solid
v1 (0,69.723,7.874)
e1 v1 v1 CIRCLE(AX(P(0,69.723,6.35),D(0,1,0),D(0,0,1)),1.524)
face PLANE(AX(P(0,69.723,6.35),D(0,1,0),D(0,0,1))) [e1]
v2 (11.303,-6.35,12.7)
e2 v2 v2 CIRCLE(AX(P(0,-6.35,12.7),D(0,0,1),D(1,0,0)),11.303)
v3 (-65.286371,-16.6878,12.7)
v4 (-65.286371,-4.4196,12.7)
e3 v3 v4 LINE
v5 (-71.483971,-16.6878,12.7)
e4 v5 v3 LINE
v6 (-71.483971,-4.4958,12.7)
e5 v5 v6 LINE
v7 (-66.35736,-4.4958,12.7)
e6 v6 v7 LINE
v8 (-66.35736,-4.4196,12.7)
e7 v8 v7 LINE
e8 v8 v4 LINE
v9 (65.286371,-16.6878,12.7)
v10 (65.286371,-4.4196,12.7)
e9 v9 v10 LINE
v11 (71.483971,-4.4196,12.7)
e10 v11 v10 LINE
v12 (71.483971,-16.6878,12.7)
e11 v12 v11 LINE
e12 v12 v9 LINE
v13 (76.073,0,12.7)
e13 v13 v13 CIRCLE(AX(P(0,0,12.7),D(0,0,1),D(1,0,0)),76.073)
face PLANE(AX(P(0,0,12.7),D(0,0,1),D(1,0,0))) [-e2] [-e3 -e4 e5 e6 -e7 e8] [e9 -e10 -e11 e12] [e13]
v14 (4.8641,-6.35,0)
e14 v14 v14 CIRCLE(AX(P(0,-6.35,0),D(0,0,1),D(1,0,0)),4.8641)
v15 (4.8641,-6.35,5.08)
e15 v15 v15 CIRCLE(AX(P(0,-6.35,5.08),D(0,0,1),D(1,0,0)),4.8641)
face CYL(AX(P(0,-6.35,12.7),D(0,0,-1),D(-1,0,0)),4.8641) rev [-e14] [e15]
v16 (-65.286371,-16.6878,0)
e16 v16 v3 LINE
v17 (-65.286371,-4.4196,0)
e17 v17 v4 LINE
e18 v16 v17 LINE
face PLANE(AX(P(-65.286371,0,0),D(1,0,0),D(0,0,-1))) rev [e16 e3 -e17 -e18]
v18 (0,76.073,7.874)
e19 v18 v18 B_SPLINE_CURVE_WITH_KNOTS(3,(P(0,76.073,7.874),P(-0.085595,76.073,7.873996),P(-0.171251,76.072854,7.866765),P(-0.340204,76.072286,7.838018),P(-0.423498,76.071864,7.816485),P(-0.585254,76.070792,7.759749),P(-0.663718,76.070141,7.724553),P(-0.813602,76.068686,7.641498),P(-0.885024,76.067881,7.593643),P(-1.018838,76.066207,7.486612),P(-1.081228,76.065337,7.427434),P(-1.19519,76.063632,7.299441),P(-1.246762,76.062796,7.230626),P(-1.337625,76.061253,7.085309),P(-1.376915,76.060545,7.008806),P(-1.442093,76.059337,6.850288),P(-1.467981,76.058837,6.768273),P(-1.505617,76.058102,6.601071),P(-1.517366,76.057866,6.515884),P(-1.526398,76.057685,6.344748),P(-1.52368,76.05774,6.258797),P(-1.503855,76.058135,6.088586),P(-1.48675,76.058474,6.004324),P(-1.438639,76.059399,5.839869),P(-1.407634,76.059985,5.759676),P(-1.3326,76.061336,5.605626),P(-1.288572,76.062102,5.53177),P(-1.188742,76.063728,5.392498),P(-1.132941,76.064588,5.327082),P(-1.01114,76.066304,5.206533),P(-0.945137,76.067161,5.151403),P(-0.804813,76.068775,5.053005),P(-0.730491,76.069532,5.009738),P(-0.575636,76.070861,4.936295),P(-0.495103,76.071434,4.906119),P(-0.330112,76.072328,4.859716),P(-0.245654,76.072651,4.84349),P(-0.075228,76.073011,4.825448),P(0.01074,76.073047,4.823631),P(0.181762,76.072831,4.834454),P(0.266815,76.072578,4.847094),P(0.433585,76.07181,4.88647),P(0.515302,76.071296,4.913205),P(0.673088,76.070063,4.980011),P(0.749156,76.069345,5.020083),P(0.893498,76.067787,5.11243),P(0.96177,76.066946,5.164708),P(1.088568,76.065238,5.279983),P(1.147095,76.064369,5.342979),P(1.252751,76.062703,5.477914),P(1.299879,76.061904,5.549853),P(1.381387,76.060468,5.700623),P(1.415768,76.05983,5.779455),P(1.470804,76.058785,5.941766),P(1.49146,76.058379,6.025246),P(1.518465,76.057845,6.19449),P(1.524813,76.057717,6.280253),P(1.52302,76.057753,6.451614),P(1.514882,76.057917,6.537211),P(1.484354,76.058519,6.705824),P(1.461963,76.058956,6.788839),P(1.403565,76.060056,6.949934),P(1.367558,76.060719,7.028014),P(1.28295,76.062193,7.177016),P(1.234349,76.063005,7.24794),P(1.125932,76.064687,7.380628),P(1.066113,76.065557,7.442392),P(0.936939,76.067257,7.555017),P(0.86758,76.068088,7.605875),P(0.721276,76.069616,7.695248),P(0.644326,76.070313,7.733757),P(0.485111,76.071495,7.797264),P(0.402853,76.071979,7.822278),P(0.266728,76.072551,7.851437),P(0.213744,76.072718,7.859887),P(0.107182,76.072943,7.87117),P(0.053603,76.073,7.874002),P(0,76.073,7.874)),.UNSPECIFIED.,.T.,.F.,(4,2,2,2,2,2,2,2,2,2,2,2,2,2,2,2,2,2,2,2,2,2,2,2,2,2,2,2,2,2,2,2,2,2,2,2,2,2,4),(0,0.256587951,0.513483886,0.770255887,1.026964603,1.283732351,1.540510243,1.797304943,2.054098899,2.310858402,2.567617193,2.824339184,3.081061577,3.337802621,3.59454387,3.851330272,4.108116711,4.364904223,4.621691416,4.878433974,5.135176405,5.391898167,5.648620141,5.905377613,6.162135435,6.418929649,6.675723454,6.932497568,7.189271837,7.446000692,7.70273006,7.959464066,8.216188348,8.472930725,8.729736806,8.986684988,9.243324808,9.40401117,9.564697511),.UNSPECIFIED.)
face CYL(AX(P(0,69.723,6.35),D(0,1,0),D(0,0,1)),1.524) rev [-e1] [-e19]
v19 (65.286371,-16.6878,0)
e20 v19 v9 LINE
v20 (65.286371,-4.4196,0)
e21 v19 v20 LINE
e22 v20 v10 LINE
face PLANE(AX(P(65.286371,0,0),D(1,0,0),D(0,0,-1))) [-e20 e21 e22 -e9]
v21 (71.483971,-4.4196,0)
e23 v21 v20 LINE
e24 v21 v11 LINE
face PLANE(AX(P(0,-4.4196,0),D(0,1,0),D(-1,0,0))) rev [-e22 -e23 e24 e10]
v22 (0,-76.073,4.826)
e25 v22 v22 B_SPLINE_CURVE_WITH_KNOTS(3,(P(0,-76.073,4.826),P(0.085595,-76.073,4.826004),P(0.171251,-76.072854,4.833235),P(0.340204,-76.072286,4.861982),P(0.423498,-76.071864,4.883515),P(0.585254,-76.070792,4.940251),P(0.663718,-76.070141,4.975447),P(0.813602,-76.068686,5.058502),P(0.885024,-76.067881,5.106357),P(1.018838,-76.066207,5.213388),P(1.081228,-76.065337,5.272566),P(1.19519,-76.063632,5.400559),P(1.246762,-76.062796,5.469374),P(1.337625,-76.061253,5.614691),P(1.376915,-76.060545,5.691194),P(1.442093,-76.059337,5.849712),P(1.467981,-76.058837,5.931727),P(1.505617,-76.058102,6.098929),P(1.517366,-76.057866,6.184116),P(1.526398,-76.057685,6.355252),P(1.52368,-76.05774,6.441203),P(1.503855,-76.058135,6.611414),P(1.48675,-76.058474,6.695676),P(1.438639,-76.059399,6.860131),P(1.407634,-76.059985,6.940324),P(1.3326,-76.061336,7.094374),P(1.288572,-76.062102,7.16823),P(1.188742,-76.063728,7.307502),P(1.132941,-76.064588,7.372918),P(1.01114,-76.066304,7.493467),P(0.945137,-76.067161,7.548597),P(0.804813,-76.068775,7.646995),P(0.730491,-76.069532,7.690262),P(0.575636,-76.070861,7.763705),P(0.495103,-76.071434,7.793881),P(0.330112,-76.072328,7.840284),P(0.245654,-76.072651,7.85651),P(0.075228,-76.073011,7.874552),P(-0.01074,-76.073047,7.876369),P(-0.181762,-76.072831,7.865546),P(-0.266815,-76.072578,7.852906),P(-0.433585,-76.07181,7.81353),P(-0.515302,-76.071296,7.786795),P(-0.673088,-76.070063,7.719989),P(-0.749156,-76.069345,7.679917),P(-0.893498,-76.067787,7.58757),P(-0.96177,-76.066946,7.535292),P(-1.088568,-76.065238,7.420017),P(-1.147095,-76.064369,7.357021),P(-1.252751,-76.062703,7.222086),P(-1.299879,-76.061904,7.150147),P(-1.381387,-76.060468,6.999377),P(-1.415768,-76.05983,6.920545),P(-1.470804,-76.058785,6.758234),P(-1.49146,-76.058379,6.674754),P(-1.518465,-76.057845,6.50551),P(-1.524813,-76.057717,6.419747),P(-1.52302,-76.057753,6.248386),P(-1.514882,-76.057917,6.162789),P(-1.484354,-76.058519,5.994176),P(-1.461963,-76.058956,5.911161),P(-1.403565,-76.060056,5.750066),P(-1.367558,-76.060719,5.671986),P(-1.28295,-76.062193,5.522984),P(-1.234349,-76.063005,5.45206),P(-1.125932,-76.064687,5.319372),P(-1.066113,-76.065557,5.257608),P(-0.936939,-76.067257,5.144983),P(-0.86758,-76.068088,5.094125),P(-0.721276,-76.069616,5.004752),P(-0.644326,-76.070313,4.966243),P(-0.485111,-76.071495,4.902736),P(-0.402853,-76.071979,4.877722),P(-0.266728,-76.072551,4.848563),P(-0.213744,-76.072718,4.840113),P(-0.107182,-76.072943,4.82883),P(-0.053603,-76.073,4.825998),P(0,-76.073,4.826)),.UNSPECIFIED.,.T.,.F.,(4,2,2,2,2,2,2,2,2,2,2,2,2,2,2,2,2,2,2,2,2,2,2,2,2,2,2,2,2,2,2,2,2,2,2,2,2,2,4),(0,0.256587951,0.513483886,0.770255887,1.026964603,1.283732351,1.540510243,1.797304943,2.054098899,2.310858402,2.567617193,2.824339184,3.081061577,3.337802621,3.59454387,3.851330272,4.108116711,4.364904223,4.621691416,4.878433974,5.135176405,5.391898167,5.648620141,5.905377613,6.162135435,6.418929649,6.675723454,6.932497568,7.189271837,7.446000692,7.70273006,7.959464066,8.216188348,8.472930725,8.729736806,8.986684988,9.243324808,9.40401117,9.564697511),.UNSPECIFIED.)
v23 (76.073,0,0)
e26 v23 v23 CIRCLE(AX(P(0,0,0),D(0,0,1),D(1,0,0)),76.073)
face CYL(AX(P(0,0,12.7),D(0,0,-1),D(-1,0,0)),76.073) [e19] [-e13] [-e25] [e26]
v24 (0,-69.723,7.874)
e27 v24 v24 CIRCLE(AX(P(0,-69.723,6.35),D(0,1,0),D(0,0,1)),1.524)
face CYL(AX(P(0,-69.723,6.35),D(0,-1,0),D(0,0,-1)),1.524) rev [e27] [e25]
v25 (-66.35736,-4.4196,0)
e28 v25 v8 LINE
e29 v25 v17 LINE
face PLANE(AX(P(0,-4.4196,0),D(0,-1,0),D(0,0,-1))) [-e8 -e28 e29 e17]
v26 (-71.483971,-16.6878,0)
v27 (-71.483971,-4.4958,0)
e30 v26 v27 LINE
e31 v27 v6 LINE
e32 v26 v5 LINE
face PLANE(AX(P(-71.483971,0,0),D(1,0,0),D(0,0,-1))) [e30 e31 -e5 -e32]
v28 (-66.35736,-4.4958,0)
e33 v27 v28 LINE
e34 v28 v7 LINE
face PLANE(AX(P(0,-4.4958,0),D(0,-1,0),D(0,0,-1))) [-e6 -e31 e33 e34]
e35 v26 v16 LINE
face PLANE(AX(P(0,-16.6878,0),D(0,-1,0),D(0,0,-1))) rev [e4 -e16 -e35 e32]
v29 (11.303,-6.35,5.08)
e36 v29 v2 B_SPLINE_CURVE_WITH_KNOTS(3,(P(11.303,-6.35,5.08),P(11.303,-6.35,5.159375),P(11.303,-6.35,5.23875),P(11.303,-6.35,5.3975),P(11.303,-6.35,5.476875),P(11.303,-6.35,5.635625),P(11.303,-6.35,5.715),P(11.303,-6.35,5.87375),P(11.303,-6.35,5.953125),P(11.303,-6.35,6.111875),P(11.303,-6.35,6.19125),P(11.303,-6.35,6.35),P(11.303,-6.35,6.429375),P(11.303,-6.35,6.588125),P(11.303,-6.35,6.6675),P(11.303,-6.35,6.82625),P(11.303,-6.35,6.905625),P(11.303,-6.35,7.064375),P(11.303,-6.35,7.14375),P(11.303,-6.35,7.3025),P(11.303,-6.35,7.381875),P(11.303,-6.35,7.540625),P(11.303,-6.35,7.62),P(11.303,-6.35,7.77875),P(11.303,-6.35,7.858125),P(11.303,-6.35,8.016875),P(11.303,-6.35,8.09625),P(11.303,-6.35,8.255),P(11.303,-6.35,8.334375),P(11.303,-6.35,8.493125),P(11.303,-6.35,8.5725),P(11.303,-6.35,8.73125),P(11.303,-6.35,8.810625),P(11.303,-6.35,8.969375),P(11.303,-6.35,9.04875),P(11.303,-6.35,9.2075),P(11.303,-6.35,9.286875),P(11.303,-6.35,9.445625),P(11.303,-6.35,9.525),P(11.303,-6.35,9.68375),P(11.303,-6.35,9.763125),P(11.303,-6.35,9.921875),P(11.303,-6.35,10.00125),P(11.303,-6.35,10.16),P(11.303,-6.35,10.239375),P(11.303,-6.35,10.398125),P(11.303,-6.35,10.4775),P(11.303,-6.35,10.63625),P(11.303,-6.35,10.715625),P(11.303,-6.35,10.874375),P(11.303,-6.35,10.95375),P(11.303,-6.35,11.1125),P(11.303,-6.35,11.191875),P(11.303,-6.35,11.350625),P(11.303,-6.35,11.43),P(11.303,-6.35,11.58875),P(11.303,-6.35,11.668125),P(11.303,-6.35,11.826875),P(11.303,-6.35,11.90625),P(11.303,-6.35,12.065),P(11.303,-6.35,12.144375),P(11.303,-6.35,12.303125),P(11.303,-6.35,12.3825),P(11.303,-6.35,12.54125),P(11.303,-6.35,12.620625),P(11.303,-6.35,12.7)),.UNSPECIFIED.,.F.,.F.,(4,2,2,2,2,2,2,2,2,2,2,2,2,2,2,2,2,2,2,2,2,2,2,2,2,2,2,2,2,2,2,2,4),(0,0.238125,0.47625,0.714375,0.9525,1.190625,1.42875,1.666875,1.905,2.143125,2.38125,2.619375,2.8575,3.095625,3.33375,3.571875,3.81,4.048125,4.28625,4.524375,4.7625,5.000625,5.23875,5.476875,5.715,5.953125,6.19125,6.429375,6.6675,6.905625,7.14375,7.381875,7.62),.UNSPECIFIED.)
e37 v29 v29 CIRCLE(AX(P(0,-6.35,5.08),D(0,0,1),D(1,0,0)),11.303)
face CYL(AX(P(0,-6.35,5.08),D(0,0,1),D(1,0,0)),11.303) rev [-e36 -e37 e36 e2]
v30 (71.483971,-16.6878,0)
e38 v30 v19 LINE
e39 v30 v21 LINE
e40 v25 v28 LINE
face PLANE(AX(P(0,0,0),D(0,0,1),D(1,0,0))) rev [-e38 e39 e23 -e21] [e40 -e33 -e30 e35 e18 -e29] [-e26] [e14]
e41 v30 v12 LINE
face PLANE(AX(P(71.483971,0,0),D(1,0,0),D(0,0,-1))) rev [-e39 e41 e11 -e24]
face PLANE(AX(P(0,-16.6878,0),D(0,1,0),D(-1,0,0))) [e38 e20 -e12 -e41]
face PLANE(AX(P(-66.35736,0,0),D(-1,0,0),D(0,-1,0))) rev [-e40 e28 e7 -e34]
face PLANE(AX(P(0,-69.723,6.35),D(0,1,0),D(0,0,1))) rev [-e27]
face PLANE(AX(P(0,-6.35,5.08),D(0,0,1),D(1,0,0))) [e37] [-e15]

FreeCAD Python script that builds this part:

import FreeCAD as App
import Part
import Sketcher
Q = App.Units.Quantity


def add_polygon(sketch, points):
    """Adds a closed chain of lines whose ends are joined by coincident constraints."""
    first, n = sketch.GeometryCount, len(points)
    for a, b in zip(points, points[1:] + points[:1]):
        sketch.addGeometry(Part.LineSegment(App.Vector(*a, 0), App.Vector(*b, 0)), False)
    for i in range(n):
        sketch.addConstraint(Sketcher.Constraint("Coincident", first + i, 2, first + (i + 1) % n, 1))

doc = App.newDocument("Part")
params = doc.addObject("Spreadsheet::Sheet", "Params")
for row, (alias, value) in enumerate([
    ("sketch1_diameter", "5.99 in"),
    ("sketch1_diameter2", "0.383 in"),
    ("pad1_length", "0.5 in"),
    ("sketch2_height", "0.48 in"),
    ("sketch2_width", "0.244 in"),
    ("sketch2_height2", "0.483 in"),
    ("sketch3_diameter", "0.89 in"),
    ("pocket2_length", "0.3 in"),
    ("sketch4_diameter", "0.12 in"),
    ("pocket3_length", "0.25 in"),
    ("sketch5_diameter", "0.12 in"),
    ("pocket4_length", "0.25 in"),
], start=1):
    params.set(f"A{row}", alias)
    params.set(f"B{row}", "=" + value)
    params.setAlias(f"B{row}", alias)

body = doc.addObject("PartDesign::Body", "Body")

# Sketch on XY plane
sketch1 = body.newObject("Sketcher::SketchObject", "Sketch")
sketch1.AttachmentSupport = (doc.getObject("XY_Plane"), [""])
sketch1.MapMode = "FlatFace"
sketch1.addGeometry([
    Part.Circle(App.Vector(0, 0, 0), App.Vector(0, 0, 1), 76.1),
    Part.Circle(App.Vector(0, -6.3, 0), App.Vector(0, 0, 1), 4.9),
], False)
sketch1.addConstraint([
    Sketcher.Constraint("Coincident", 0, 3, -1, 1),
    Sketcher.Constraint("PointOnObject", 1, 3, -2),
    Sketcher.Constraint("Diameter", 0, Q("5.99 in")),
    Sketcher.Constraint("Diameter", 1, Q("0.383 in")),
    Sketcher.Constraint("DistanceY", 1, 3, -1, 1, Q("0.25 in")),
])
sketch1.setExpression("Constraints[2]", "Params.sketch1_diameter")
sketch1.setExpression("Constraints[3]", "Params.sketch1_diameter2")
pad1 = body.newObject("PartDesign::Pad", "Pad")
pad1.Profile = sketch1
pad1.setExpression("Length", "Params.pad1_length")

# Sketch on XY plane
sketch2 = body.newObject("Sketcher::SketchObject", "Sketch001")
sketch2.AttachmentSupport = (doc.getObject("XY_Plane"), [""])
sketch2.MapMode = "FlatFace"
sketch2.AttachmentOffset = App.Placement(App.Vector(0, 0, 0.5 * 25.4), App.Rotation())
add_polygon(sketch2, [(65.29, -4.42), (65.29, -16.69), (71.48, -16.69), (71.48, -4.42)])  # lines 0-3
add_polygon(sketch2, [(-71.48, -4.5), (-71.48, -16.69), (-65.29, -16.69), (-65.29, -4.42), (-66.36, -4.42), (-66.36, -4.5)])  # lines 4-9
sketch2.addConstraint([
    Sketcher.Constraint("Vertical", 0),
    Sketcher.Constraint("Horizontal", 1),
    Sketcher.Constraint("Vertical", 2),
    Sketcher.Constraint("Horizontal", 3),
    Sketcher.Constraint("Vertical", 4),
    Sketcher.Constraint("Horizontal", 5),
    Sketcher.Constraint("Vertical", 6),
    Sketcher.Constraint("Horizontal", 7),
    Sketcher.Constraint("Vertical", 8),
    Sketcher.Constraint("Horizontal", 9),
    Sketcher.Constraint("Symmetric", 1, 2, 4, 2, -2),
    Sketcher.Constraint("Symmetric", 3, 2, 6, 2, -2),
    Sketcher.Constraint("DistanceY", 4, 2, 4, 1, Q("0.48 in")),
    Sketcher.Constraint("DistanceX", 1, 1, 1, 2, Q("0.244 in")),
    Sketcher.Constraint("DistanceY", 0, 2, 0, 1, Q("0.483 in")),
    Sketcher.Constraint("DistanceY", 0, 2, -1, 1, Q("0.657 in")),
    Sketcher.Constraint("DistanceX", 7, 2, 7, 1, 1.070989),
    Sketcher.Constraint("DistanceX", -1, 1, 0, 2, 65.286371),
])
sketch2.setExpression("Constraints[22]", "Params.sketch2_height")
sketch2.setExpression("Constraints[23]", "Params.sketch2_width")
sketch2.setExpression("Constraints[24]", "Params.sketch2_height2")
pocket1 = body.newObject("PartDesign::Pocket", "Pocket")
pocket1.Profile = sketch2
pocket1.Type = "ThroughAll"

# Sketch on XY plane
sketch3 = body.newObject("Sketcher::SketchObject", "Sketch002")
sketch3.AttachmentSupport = (doc.getObject("XY_Plane"), [""])
sketch3.MapMode = "FlatFace"
sketch3.AttachmentOffset = App.Placement(App.Vector(0, 0, 0.5 * 25.4), App.Rotation())
sketch3.addGeometry(Part.Circle(App.Vector(0, -6, 0), App.Vector(0, 0, 1), 11), False)
sketch3.addConstraint([
    Sketcher.Constraint("PointOnObject", 0, 3, -2),
    Sketcher.Constraint("Diameter", 0, Q("0.89 in")),
    Sketcher.Constraint("DistanceY", 0, 3, -1, 1, Q("0.25 in")),
])
sketch3.setExpression("Constraints[1]", "Params.sketch3_diameter")
pocket2 = body.newObject("PartDesign::Pocket", "Pocket001")
pocket2.Profile = sketch3
pocket2.setExpression("Length", "Params.pocket2_length")

# Sketch on XZ plane
sketch4 = body.newObject("Sketcher::SketchObject", "Sketch003")
sketch4.AttachmentSupport = (doc.getObject("XZ_Plane"), [""])
sketch4.MapMode = "FlatFace"
sketch4.AttachmentOffset = App.Placement(App.Vector(0, 0, -2.995 * 25.4), App.Rotation())
sketch4.addGeometry(Part.Circle(App.Vector(0, 6.3, 0), App.Vector(0, 0, 1), 1.5), False)
sketch4.addConstraint([
    Sketcher.Constraint("PointOnObject", 0, 3, -2),
    Sketcher.Constraint("Diameter", 0, Q("0.12 in")),
    Sketcher.Constraint("DistanceY", -1, 1, 0, 3, Q("0.25 in")),
])
sketch4.setExpression("Constraints[1]", "Params.sketch4_diameter")
pocket3 = body.newObject("PartDesign::Pocket", "Pocket002")
pocket3.Profile = sketch4
pocket3.setExpression("Length", "Params.pocket3_length")
pocket3.Reversed = True

# Sketch on XZ plane
sketch5 = body.newObject("Sketcher::SketchObject", "Sketch004")
sketch5.AttachmentSupport = (doc.getObject("XZ_Plane"), [""])
sketch5.MapMode = "FlatFace"
sketch5.AttachmentOffset = App.Placement(App.Vector(0, 0, 2.745 * 25.4), App.Rotation())
sketch5.addGeometry(Part.Circle(App.Vector(0, 6.3, 0), App.Vector(0, 0, 1), 1.5), False)
sketch5.addConstraint([
    Sketcher.Constraint("PointOnObject", 0, 3, -2),
    Sketcher.Constraint("Diameter", 0, Q("0.12 in")),
    Sketcher.Constraint("DistanceY", -1, 1, 0, 3, Q("0.25 in")),
])
sketch5.setExpression("Constraints[1]", "Params.sketch5_diameter")
pocket4 = body.newObject("PartDesign::Pocket", "Pocket003")
pocket4.Profile = sketch5
pocket4.setExpression("Length", "Params.pocket4_length")
pocket4.Reversed = True

doc.recompute()
